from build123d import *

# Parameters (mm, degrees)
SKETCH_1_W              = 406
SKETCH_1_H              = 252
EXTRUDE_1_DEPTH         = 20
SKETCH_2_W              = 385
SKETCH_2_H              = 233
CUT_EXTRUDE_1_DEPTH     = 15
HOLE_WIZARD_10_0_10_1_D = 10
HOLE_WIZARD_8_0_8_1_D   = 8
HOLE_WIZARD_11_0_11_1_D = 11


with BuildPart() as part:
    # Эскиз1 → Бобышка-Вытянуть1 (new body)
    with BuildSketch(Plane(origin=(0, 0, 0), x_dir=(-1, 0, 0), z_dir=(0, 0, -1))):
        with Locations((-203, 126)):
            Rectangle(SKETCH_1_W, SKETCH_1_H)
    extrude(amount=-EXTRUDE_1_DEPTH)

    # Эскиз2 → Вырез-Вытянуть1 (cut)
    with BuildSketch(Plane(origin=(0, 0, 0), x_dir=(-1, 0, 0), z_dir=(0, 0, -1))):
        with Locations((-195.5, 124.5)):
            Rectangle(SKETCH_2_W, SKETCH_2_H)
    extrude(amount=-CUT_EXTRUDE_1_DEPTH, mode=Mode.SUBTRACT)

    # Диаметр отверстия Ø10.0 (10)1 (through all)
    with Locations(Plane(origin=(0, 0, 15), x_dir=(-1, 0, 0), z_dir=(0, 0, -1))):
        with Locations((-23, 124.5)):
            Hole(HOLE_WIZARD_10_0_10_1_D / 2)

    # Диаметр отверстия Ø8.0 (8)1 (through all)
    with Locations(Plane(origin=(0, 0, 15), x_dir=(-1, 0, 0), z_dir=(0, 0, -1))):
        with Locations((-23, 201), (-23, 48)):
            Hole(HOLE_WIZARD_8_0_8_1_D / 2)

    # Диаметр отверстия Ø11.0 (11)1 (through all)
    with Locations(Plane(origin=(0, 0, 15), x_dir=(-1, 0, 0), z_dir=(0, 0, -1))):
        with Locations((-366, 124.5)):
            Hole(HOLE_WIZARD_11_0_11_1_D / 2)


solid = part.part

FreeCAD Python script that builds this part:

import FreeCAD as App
import Part
import Sketcher


def add_polygon(sketch, points):
    """Adds a closed chain of lines whose ends are joined by coincident constraints."""
    first, n = sketch.GeometryCount, len(points)
    for a, b in zip(points, points[1:] + points[:1]):
        sketch.addGeometry(Part.LineSegment(App.Vector(*a, 0), App.Vector(*b, 0)), False)
    for i in range(n):
        sketch.addConstraint(Sketcher.Constraint("Coincident", first + i, 2, first + (i + 1) % n, 1))

doc = App.newDocument("Part")
body = doc.addObject("PartDesign::Body", "Body")

# Sketch on XY plane
sketch1 = doc.addObject("Sketcher::SketchObject", "Sketch")
body.addObject(sketch1)
sketch1.AttachmentSupport = (doc.XY_Plane, [""])
sketch1.MapMode = "FlatFace"
add_polygon(sketch1, [(406, 252), (406, 0), (0, 0), (0, 252)])  # lines 0-3
sketch1.addConstraint([
    Sketcher.Constraint("Vertical", 0),
    Sketcher.Constraint("Horizontal", 1),
    Sketcher.Constraint("Vertical", 2),
    Sketcher.Constraint("Horizontal", 3),
    Sketcher.Constraint("Coincident", 1, 2, -1, 1),
    Sketcher.Constraint("DistanceX", 1, 2, 1, 1, 406.0),
    Sketcher.Constraint("DistanceY", 0, 2, 0, 1, 252.0),
])
pad1 = doc.addObject("PartDesign::Pad", "Pad")
body.addObject(pad1)
pad1.Profile = sketch1
pad1.Length = 20

# Sketch on XY plane
sketch2 = doc.addObject("Sketcher::SketchObject", "Sketch001")
body.addObject(sketch2)
sketch2.AttachmentSupport = (doc.XY_Plane, [""])
sketch2.MapMode = "FlatFace"
add_polygon(sketch2, [(388, 241), (388, 8), (3, 8), (3, 241)])  # lines 0-3
sketch2.addConstraint([
    Sketcher.Constraint("Vertical", 0),
    Sketcher.Constraint("Horizontal", 1),
    Sketcher.Constraint("Vertical", 2),
    Sketcher.Constraint("Horizontal", 3),
    Sketcher.Constraint("DistanceX", 1, 2, 1, 1, 385.0),
    Sketcher.Constraint("DistanceY", 0, 2, 0, 1, 233.0),
    Sketcher.Constraint("DistanceX", -1, 1, 0, 2, 388.0),
    Sketcher.Constraint("DistanceY", -1, 1, 0, 2, 8.0),
])
pocket1 = doc.addObject("PartDesign::Pocket", "Pocket")
body.addObject(pocket1)
pocket1.Profile = sketch2
pocket1.Length = 15
pocket1.Reversed = True

# Sketch on XY plane
sketch3 = doc.addObject("Sketcher::SketchObject", "Sketch002")
body.addObject(sketch3)
sketch3.AttachmentSupport = (doc.XY_Plane, [""])
sketch3.MapMode = "FlatFace"
sketch3.AttachmentOffset = App.Placement(App.Vector(0, 0, 15), App.Rotation())
sketch3.addGeometry(Part.Circle(App.Vector(23, 124, 0), App.Vector(0, 0, 1), 5), False)
sketch3.addConstraint([
    Sketcher.Constraint("Diameter", 0, 10.0),
    Sketcher.Constraint("DistanceX", -1, 1, 0, 3, 23.0),
    Sketcher.Constraint("DistanceY", -1, 1, 0, 3, 124.5),
])
doc.recompute()
hole = doc.addObject("PartDesign::Hole", "Hole")
body.addObject(hole)
hole.Profile = sketch3
hole.ThreadType = "None"
hole.Diameter = 10
hole.DepthType = "ThroughAll"
hole.Reversed = True

# Sketch on XY plane
sketch4 = doc.addObject("Sketcher::SketchObject", "Sketch003")
body.addObject(sketch4)
sketch4.AttachmentSupport = (doc.XY_Plane, [""])
sketch4.MapMode = "FlatFace"
sketch4.AttachmentOffset = App.Placement(App.Vector(0, 0, 15), App.Rotation())
sketch4.addGeometry([
    Part.Circle(App.Vector(23, 201, 0), App.Vector(0, 0, 1), 4),
    Part.Circle(App.Vector(23, 48, 0), App.Vector(0, 0, 1), 4),
], False)
sketch4.addConstraint([
    Sketcher.Constraint("Equal", 0, 1),
    Sketcher.Constraint("Vertical", 0, 3, 1, 3),
    Sketcher.Constraint("Diameter", 0, 8.0),
    Sketcher.Constraint("DistanceX", -1, 1, 0, 3, 23.0),
    Sketcher.Constraint("DistanceY", -1, 1, 0, 3, 201.0),
    Sketcher.Constraint("DistanceY", -1, 1, 1, 3, 48.0),
])
doc.recompute()
hole2 = doc.addObject("PartDesign::Hole", "Hole001")
body.addObject(hole2)
hole2.Profile = sketch4
hole2.ThreadType = "None"
hole2.Diameter = 8
hole2.DepthType = "ThroughAll"
hole2.Reversed = True

# Sketch on XY plane
sketch5 = doc.addObject("Sketcher::SketchObject", "Sketch004")
body.addObject(sketch5)
sketch5.AttachmentSupport = (doc.XY_Plane, [""])
sketch5.MapMode = "FlatFace"
sketch5.AttachmentOffset = App.Placement(App.Vector(0, 0, 15), App.Rotation())
sketch5.addGeometry(Part.Circle(App.Vector(366, 124, 0), App.Vector(0, 0, 1), 6), False)
sketch5.addConstraint([
    Sketcher.Constraint("Diameter", 0, 11.0),
    Sketcher.Constraint("DistanceX", -1, 1, 0, 3, 366.0),
    Sketcher.Constraint("DistanceY", -1, 1, 0, 3, 124.5),
])
doc.recompute()
hole3 = doc.addObject("PartDesign::Hole", "Hole002")
body.addObject(hole3)
hole3.Profile = sketch5
hole3.ThreadType = "None"
hole3.Diameter = 11
hole3.DepthType = "ThroughAll"
hole3.Reversed = True

doc.recompute()
